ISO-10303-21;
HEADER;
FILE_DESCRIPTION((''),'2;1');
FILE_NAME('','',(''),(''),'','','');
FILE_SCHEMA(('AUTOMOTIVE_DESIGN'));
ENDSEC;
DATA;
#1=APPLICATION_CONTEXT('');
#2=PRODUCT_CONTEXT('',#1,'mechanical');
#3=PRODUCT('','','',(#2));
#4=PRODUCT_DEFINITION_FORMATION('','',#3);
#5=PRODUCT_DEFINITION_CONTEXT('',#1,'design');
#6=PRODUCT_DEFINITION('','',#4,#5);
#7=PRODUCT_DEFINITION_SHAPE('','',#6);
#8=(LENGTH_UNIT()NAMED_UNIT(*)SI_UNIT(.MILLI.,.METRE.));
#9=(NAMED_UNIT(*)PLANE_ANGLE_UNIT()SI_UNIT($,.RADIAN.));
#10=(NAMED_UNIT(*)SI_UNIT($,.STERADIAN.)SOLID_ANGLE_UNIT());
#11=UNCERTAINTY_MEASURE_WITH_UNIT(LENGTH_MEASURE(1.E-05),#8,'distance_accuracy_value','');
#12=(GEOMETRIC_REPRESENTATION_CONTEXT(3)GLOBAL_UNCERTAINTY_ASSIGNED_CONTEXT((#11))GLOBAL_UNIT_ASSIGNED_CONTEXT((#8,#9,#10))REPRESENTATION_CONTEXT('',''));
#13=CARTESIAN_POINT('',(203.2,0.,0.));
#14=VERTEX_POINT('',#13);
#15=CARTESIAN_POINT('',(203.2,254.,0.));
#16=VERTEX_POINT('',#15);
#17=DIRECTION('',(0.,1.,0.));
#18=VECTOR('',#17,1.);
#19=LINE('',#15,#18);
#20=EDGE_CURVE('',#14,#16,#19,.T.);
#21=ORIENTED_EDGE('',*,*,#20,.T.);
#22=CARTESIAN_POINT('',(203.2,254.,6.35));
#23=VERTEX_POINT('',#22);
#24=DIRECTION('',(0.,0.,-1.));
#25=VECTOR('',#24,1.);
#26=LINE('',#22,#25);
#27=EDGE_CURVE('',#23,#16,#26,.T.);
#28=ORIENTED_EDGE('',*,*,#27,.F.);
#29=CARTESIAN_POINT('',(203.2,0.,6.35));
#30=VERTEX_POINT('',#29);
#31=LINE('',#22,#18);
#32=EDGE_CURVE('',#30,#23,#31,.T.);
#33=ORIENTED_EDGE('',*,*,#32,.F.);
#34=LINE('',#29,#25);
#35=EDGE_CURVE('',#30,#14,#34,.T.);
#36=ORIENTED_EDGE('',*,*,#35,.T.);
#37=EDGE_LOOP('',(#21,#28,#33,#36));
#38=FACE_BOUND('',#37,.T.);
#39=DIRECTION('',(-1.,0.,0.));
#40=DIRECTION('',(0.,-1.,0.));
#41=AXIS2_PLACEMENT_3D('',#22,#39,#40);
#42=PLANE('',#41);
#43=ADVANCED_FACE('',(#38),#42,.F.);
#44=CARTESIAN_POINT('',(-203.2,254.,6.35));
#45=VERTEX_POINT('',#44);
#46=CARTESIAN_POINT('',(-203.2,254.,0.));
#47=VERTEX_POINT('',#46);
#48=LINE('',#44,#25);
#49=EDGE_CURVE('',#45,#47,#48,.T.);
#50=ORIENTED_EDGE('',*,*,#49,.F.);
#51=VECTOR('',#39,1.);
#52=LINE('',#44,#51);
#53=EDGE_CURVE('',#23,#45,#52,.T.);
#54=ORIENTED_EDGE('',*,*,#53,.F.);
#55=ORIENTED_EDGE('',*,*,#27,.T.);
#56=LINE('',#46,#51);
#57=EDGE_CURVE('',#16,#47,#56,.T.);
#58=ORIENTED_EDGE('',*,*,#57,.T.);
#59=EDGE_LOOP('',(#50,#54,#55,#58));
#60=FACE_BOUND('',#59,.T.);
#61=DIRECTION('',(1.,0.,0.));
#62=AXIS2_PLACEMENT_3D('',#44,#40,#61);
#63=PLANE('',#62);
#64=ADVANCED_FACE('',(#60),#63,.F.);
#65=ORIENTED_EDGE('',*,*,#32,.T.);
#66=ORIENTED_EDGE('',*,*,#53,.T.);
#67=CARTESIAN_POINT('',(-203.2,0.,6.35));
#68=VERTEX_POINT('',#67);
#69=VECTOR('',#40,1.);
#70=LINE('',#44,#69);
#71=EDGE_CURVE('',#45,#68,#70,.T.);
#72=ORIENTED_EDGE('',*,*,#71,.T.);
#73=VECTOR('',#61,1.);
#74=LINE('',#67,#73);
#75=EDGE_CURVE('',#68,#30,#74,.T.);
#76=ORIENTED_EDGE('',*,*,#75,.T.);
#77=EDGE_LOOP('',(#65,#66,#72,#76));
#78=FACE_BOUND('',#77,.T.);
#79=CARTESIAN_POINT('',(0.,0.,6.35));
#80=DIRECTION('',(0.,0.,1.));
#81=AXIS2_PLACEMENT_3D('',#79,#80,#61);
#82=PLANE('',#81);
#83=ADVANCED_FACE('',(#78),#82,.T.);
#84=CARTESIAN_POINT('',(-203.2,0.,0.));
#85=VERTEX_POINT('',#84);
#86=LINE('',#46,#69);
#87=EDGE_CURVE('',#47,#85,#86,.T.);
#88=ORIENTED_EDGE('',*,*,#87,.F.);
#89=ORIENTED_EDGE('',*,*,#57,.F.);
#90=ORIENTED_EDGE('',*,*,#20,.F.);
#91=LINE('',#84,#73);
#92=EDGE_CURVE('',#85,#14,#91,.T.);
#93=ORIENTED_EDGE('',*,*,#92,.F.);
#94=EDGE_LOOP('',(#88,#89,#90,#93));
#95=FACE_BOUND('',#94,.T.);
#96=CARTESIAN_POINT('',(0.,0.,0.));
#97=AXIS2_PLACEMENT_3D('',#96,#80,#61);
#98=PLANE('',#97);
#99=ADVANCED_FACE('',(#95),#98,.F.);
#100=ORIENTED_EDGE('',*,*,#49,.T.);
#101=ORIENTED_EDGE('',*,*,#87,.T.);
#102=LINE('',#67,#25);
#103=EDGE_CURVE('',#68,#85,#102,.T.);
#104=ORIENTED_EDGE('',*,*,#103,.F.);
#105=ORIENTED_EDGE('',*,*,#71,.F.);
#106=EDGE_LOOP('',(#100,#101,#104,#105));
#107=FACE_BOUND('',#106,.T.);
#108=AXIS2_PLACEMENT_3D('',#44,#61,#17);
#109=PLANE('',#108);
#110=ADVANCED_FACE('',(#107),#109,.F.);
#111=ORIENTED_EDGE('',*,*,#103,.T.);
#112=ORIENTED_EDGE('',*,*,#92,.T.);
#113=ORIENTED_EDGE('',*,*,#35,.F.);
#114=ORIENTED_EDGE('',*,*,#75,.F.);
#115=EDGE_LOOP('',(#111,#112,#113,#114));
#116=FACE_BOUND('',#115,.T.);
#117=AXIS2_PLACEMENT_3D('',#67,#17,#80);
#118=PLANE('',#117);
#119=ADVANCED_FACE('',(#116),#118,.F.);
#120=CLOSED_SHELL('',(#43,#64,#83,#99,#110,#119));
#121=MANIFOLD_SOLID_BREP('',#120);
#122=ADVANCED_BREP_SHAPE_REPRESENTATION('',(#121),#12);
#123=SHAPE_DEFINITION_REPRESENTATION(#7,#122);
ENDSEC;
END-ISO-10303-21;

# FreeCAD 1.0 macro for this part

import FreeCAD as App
import Part
import Sketcher
from FreeCAD import Vector
Q = App.Units.Quantity


def add_polygon(sketch, points):
    """Adds a closed chain of lines whose ends are joined by coincident constraints."""
    first, n = sketch.GeometryCount, len(points)
    for a, b in zip(points, points[1:] + points[:1]):
        sketch.addGeometry(Part.LineSegment(App.Vector(*a, 0), App.Vector(*b, 0)), False)
    for i in range(n):
        sketch.addConstraint(Sketcher.Constraint("Coincident", first + i, 2, first + (i + 1) % n, 1))

doc = App.newDocument("Part")
body = doc.addObject("PartDesign::Body", "Body")

sketch1 = doc.addObject("Sketcher::SketchObject", "Sketch")
body.addObject(sketch1)
sketch1.AttachmentSupport = (doc.XY_Plane, [""])
sketch1.MapMode = "FlatFace"
add_polygon(sketch1, [(-203, 254), (-203, 0), (203, 0), (203, 254)])
sketch1.addConstraint(Sketcher.Constraint("Vertical", 0))
sketch1.addConstraint(Sketcher.Constraint("Horizontal", 1))
sketch1.addConstraint(Sketcher.Constraint("Vertical", 2))
sketch1.addConstraint(Sketcher.Constraint("Horizontal", 3))
sketch1.addConstraint(Sketcher.Constraint("Symmetric", 0, 2, 1, 2, -1, 1))
sketch1.addConstraint(Sketcher.Constraint("DistanceX", 1, 1, 1, 2, Q("16 in")))
sketch1.addConstraint(Sketcher.Constraint("DistanceY", 0, 2, 0, 1, Q("10 in")))
pad1 = doc.addObject("PartDesign::Pad", "Pad")
body.addObject(pad1)
pad1.Profile = sketch1
pad1.Length = Q("0.25 in")

doc.recompute()
